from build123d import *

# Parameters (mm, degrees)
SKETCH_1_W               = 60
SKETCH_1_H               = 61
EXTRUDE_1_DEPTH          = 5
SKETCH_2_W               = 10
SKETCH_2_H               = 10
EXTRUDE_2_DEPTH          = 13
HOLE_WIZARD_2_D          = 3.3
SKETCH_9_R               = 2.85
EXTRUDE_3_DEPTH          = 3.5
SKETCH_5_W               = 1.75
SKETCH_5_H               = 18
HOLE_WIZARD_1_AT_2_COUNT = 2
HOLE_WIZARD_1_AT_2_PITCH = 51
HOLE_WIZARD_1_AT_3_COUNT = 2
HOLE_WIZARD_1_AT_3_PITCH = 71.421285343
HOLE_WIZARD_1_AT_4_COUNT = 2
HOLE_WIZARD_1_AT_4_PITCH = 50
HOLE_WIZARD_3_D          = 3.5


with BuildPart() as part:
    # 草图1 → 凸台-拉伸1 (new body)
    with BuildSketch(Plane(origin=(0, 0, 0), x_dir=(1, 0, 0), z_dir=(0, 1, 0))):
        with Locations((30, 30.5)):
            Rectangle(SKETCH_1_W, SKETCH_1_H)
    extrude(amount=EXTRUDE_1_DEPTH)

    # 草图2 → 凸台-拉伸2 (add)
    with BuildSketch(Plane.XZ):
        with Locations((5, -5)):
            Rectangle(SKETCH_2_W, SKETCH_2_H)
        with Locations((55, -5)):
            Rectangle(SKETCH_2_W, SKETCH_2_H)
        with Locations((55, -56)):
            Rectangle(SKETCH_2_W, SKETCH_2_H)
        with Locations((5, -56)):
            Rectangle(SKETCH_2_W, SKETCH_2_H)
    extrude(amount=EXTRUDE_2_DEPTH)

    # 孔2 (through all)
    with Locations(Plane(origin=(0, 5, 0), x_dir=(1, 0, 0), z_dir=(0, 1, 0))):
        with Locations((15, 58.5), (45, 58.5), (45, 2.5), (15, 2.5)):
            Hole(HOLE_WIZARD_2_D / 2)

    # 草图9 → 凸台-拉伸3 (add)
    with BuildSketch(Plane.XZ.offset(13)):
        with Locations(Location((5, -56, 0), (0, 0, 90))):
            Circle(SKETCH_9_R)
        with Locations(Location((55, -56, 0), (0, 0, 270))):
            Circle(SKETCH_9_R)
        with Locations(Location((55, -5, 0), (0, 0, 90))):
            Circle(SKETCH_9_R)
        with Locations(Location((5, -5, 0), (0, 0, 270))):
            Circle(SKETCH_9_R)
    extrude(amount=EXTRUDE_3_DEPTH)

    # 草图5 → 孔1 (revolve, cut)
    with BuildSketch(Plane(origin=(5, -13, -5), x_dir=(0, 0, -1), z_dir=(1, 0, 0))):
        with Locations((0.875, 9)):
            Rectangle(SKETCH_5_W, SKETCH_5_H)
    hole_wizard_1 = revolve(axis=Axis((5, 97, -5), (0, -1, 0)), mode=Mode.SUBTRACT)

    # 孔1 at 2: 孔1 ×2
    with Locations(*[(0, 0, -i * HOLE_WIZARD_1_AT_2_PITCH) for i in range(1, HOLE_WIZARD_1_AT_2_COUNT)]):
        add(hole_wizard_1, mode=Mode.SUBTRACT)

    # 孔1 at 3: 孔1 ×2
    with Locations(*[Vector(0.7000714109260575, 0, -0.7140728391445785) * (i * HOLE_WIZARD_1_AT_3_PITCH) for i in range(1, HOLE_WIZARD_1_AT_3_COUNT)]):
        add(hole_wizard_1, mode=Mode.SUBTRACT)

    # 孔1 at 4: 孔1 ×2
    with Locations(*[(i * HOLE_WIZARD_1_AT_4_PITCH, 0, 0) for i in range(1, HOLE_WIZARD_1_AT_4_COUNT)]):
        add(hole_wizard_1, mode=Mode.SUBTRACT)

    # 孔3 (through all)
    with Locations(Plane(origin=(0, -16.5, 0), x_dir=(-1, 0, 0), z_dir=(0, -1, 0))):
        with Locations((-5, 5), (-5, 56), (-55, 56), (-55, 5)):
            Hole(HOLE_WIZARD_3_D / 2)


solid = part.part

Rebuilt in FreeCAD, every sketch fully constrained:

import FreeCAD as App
import Part
import Sketcher
from FreeCAD import Vector


def add_polygon(sketch, points):
    """Adds a closed chain of lines whose ends are joined by coincident constraints."""
    first, n = sketch.GeometryCount, len(points)
    for a, b in zip(points, points[1:] + points[:1]):
        sketch.addGeometry(Part.LineSegment(App.Vector(*a, 0), App.Vector(*b, 0)), False)
    for i in range(n):
        sketch.addConstraint(Sketcher.Constraint("Coincident", first + i, 2, first + (i + 1) % n, 1))

doc = App.newDocument("Part")
body = doc.addObject("PartDesign::Body", "Body")

# Sketch on XZ plane
sketch1 = body.newObject("Sketcher::SketchObject", "Sketch")
sketch1.AttachmentSupport = (doc.getObject("XZ_Plane"), [""])
sketch1.MapMode = "FlatFace"
add_polygon(sketch1, [(0, -61), (0, 0), (60, 0), (60, -61)])  # lines 0-3
sketch1.addConstraint(Sketcher.Constraint("Vertical", 0))
sketch1.addConstraint(Sketcher.Constraint("Horizontal", 1))
sketch1.addConstraint(Sketcher.Constraint("Vertical", 2))
sketch1.addConstraint(Sketcher.Constraint("Horizontal", 3))
sketch1.addConstraint(Sketcher.Constraint("Coincident", 0, 2, -1, 1))
sketch1.addConstraint(Sketcher.Constraint("DistanceX", 1, 1, 1, 2, 60.0))
sketch1.addConstraint(Sketcher.Constraint("DistanceY", 0, 1, 0, 2, 61.0))
pad1 = body.newObject("PartDesign::Pad", "Pad")
pad1.Profile = sketch1
pad1.Length = 5
pad1.Reversed = True

# Sketch on XZ plane
sketch2 = body.newObject("Sketcher::SketchObject", "Sketch001")
sketch2.AttachmentSupport = (doc.getObject("XZ_Plane"), [""])
sketch2.MapMode = "FlatFace"
add_polygon(sketch2, [(0, 0), (0, -10), (10, -10), (10, 0)])  # lines 0-3
add_polygon(sketch2, [(50, 0), (50, -10), (60, -10), (60, 0)])  # lines 4-7
add_polygon(sketch2, [(50, -51), (50, -61), (60, -61), (60, -51)])  # lines 8-11
add_polygon(sketch2, [(0, -51), (0, -61), (10, -61), (10, -51)])  # lines 12-15
sketch2.addConstraint(Sketcher.Constraint("Vertical", 0))
sketch2.addConstraint(Sketcher.Constraint("Horizontal", 1))
sketch2.addConstraint(Sketcher.Constraint("Vertical", 2))
sketch2.addConstraint(Sketcher.Constraint("Horizontal", 3))
sketch2.addConstraint(Sketcher.Constraint("Vertical", 4))
sketch2.addConstraint(Sketcher.Constraint("Horizontal", 5))
sketch2.addConstraint(Sketcher.Constraint("Vertical", 6))
sketch2.addConstraint(Sketcher.Constraint("Horizontal", 7))
sketch2.addConstraint(Sketcher.Constraint("Vertical", 8))
sketch2.addConstraint(Sketcher.Constraint("Horizontal", 9))
sketch2.addConstraint(Sketcher.Constraint("Vertical", 10))
sketch2.addConstraint(Sketcher.Constraint("Horizontal", 11))
sketch2.addConstraint(Sketcher.Constraint("Vertical", 12))
sketch2.addConstraint(Sketcher.Constraint("Horizontal", 13))
sketch2.addConstraint(Sketcher.Constraint("Vertical", 14))
sketch2.addConstraint(Sketcher.Constraint("Horizontal", 15))
sketch2.addConstraint(Sketcher.Constraint("Coincident", 3, 2, -1, 1))
sketch2.addConstraint(Sketcher.Constraint("PointOnObject", 6, 2, -1))
sketch2.addConstraint(Sketcher.Constraint("PointOnObject", 12, 2, -2))
sketch2.addConstraint(Sketcher.Constraint("Horizontal", 1, 2, 4, 2))
sketch2.addConstraint(Sketcher.Constraint("Horizontal", 9, 2, 12, 2))
sketch2.addConstraint(Sketcher.Constraint("Horizontal", 11, 2, 14, 2))
sketch2.addConstraint(Sketcher.Constraint("Vertical", 7, 2, 8, 2))
sketch2.addConstraint(Sketcher.Constraint("Vertical", 6, 2, 9, 2))
sketch2.addConstraint(Sketcher.Constraint("Vertical", 2, 2, 13, 2))
sketch2.addConstraint(Sketcher.Constraint("Equal", 3, 5))
sketch2.addConstraint(Sketcher.Constraint("Equal", 15, 0))
sketch2.addConstraint(Sketcher.Constraint("Equal", 6, 8))
sketch2.addConstraint(Sketcher.Constraint("DistanceX", 1, 1, 1, 2, 10.0))
sketch2.addConstraint(Sketcher.Constraint("DistanceX", -1, 1, 4, 2, 50.0))
sketch2.addConstraint(Sketcher.Constraint("DistanceY", 8, 2, -1, 1, 61.0))
pad2 = body.newObject("PartDesign::Pad", "Pad001")
pad2.Profile = sketch2
pad2.Length = 13

# Sketch on XZ plane
sketch3 = body.newObject("Sketcher::SketchObject", "Sketch002")
sketch3.AttachmentSupport = (doc.getObject("XZ_Plane"), [""])
sketch3.MapMode = "FlatFace"
sketch3.AttachmentOffset = App.Placement(Vector(0, 0, -5), App.Rotation())
sketch3.addGeometry(Part.Circle(Vector(15, -58.5, 0), Vector(0, 0, 1), 1.65), False)
sketch3.addGeometry(Part.Circle(Vector(45, -58.5, 0), Vector(0, 0, 1), 1.65), False)
sketch3.addGeometry(Part.Circle(Vector(45, -2.5, 0), Vector(0, 0, 1), 1.65), False)
sketch3.addGeometry(Part.Circle(Vector(15, -2.5, 0), Vector(0, 0, 1), 1.65), False)
sketch3.addConstraint(Sketcher.Constraint("Equal", 0, 1))
sketch3.addConstraint(Sketcher.Constraint("Equal", 1, 2))
sketch3.addConstraint(Sketcher.Constraint("Equal", 2, 3))
sketch3.addConstraint(Sketcher.Constraint("Horizontal", 0, 3, 1, 3))
sketch3.addConstraint(Sketcher.Constraint("Horizontal", 2, 3, 3, 3))
sketch3.addConstraint(Sketcher.Constraint("Vertical", 1, 3, 2, 3))
sketch3.addConstraint(Sketcher.Constraint("Vertical", 0, 3, 3, 3))
sketch3.addConstraint(Sketcher.Constraint("Diameter", 0, 3.3))
sketch3.addConstraint(Sketcher.Constraint("DistanceX", -1, 1, 0, 3, 15.0))
sketch3.addConstraint(Sketcher.Constraint("DistanceX", -1, 1, 1, 3, 45.0))
sketch3.addConstraint(Sketcher.Constraint("DistanceY", 1, 3, 2, 3, 56.0))
sketch3.addConstraint(Sketcher.Constraint("DistanceY", 0, 3, -1, 1, 58.5))
doc.recompute()
hole = body.newObject("PartDesign::Hole", "Hole")
hole.Profile = sketch3
hole.ThreadType = "None"
hole.Diameter = 3.3
hole.DepthType = "ThroughAll"
hole.Reversed = True

# Sketch on XZ plane
sketch4 = body.newObject("Sketcher::SketchObject", "Sketch003")
sketch4.AttachmentSupport = (doc.getObject("XZ_Plane"), [""])
sketch4.MapMode = "FlatFace"
sketch4.AttachmentOffset = App.Placement(Vector(0, 0, 13), App.Rotation())
sketch4.addGeometry(Part.Circle(Vector(5, -56, 0), Vector(0, 0, 1), 2.85), False)
sketch4.addGeometry(Part.Circle(Vector(55, -56, 0), Vector(0, 0, 1), 2.85), False)
sketch4.addGeometry(Part.Circle(Vector(55, -5, 0), Vector(0, 0, 1), 2.85), False)
sketch4.addGeometry(Part.Circle(Vector(5, -5, 0), Vector(0, 0, 1), 2.85), False)
sketch4.addConstraint(Sketcher.Constraint("Equal", 0, 1))
sketch4.addConstraint(Sketcher.Constraint("Equal", 1, 2))
sketch4.addConstraint(Sketcher.Constraint("Equal", 2, 3))
sketch4.addConstraint(Sketcher.Constraint("Horizontal", 0, 3, 1, 3))
sketch4.addConstraint(Sketcher.Constraint("Horizontal", 2, 3, 3, 3))
sketch4.addConstraint(Sketcher.Constraint("Vertical", 1, 3, 2, 3))
sketch4.addConstraint(Sketcher.Constraint("Vertical", 0, 3, 3, 3))
sketch4.addConstraint(Sketcher.Constraint("Diameter", 0, 5.7))
sketch4.addConstraint(Sketcher.Constraint("DistanceX", -1, 1, 0, 3, 5.0))
sketch4.addConstraint(Sketcher.Constraint("DistanceY", 0, 3, -1, 1, 56.0))
sketch4.addConstraint(Sketcher.Constraint("DistanceX", -1, 1, 1, 3, 55.0))
sketch4.addConstraint(Sketcher.Constraint("DistanceY", 2, 3, -1, 1, 5.0))
pad3 = body.newObject("PartDesign::Pad", "Pad002")
pad3.Profile = sketch4
pad3.Length = 3.5

# Sketch on YZ plane
sketch5 = body.newObject("Sketcher::SketchObject", "Sketch004")
sketch5.AttachmentSupport = (doc.getObject("YZ_Plane"), [""])
sketch5.MapMode = "FlatFace"
sketch5.AttachmentOffset = App.Placement(Vector(0, 0, 5), App.Rotation())
add_polygon(sketch5, [(5, -5), (-13, -5), (-13, -6.75), (5, -6.75)])  # lines 0-3
sketch5.addGeometry(Part.LineSegment(Vector(5, -5, 0), Vector(-13, -5, 0)), True)  # axis
sketch5.addConstraint(Sketcher.Constraint("Horizontal", 0))
sketch5.addConstraint(Sketcher.Constraint("Vertical", 1))
sketch5.addConstraint(Sketcher.Constraint("Horizontal", 2))
sketch5.addConstraint(Sketcher.Constraint("Vertical", 3))
sketch5.addConstraint(Sketcher.Constraint("Horizontal", 4))
sketch5.addConstraint(Sketcher.Constraint("Coincident", 4, 1, 3, 2))
sketch5.addConstraint(Sketcher.Constraint("Vertical", 1, 2, 4, 2))
sketch5.addConstraint(Sketcher.Constraint("DistanceX", 0, 2, 0, 1, 18.0))
sketch5.addConstraint(Sketcher.Constraint("DistanceX", 0, 2, -1, 1, 13.0))
sketch5.addConstraint(Sketcher.Constraint("DistanceY", 0, 2, -1, 1, 5.0))
sketch5.addConstraint(Sketcher.Constraint("DistanceY", 1, 2, 1, 1, 1.75))
groove = body.newObject("PartDesign::Groove", "Groove")
groove.Profile = sketch5
groove.ReferenceAxis = (sketch5, ["Axis0"])
groove.Angle = 360
doc.recompute()

linearpattern = body.newObject("PartDesign::LinearPattern", "LinearPattern")
linearpattern.Originals = [groove]
linearpattern.Direction = (doc.getObject("Z_Axis"), [""])
linearpattern.Mode = "offset"
linearpattern.Offset = 51
linearpattern.Occurrences = 2
linearpattern.Reversed = True
body.Tip = linearpattern
doc.recompute()

datumline = body.newObject("PartDesign::Line", "DatumLine")
datumline.Placement = App.Placement(Vector(0, 0, 0), App.Rotation(Vector(0, 0, 1), Vector(0.700071411, 0, -0.714072839)))
linearpattern2 = body.newObject("PartDesign::LinearPattern", "LinearPattern001")
linearpattern2.Originals = [groove]
linearpattern2.Direction = (datumline, [""])
linearpattern2.Mode = "offset"
linearpattern2.Offset = 71.421285
linearpattern2.Occurrences = 2
body.Tip = linearpattern2
doc.recompute()

linearpattern3 = body.newObject("PartDesign::LinearPattern", "LinearPattern002")
linearpattern3.Originals = [groove]
linearpattern3.Direction = (doc.getObject("X_Axis"), [""])
linearpattern3.Mode = "offset"
linearpattern3.Offset = 50
linearpattern3.Occurrences = 2
body.Tip = linearpattern3

# Sketch on XZ plane
sketch6 = body.newObject("Sketcher::SketchObject", "Sketch005")
sketch6.AttachmentSupport = (doc.getObject("XZ_Plane"), [""])
sketch6.MapMode = "FlatFace"
sketch6.AttachmentOffset = App.Placement(Vector(0, 0, 16.5), App.Rotation())
sketch6.addGeometry(Part.Circle(Vector(5, -5, 0), Vector(0, 0, 1), 1.75), False)
sketch6.addGeometry(Part.Circle(Vector(5, -56, 0), Vector(0, 0, 1), 1.75), False)
sketch6.addGeometry(Part.Circle(Vector(55, -56, 0), Vector(0, 0, 1), 1.75), False)
sketch6.addGeometry(Part.Circle(Vector(55, -5, 0), Vector(0, 0, 1), 1.75), False)
sketch6.addConstraint(Sketcher.Constraint("Equal", 0, 1))
sketch6.addConstraint(Sketcher.Constraint("Equal", 1, 2))
sketch6.addConstraint(Sketcher.Constraint("Equal", 2, 3))
sketch6.addConstraint(Sketcher.Constraint("Horizontal", 1, 3, 2, 3))
sketch6.addConstraint(Sketcher.Constraint("Horizontal", 0, 3, 3, 3))
sketch6.addConstraint(Sketcher.Constraint("Vertical", 0, 3, 1, 3))
sketch6.addConstraint(Sketcher.Constraint("Vertical", 2, 3, 3, 3))
sketch6.addConstraint(Sketcher.Constraint("Diameter", 0, 3.5))
sketch6.addConstraint(Sketcher.Constraint("DistanceX", -1, 1, 0, 3, 5.0))
sketch6.addConstraint(Sketcher.Constraint("DistanceY", 0, 3, -1, 1, 5.0))
sketch6.addConstraint(Sketcher.Constraint("DistanceY", 1, 3, -1, 1, 56.0))
sketch6.addConstraint(Sketcher.Constraint("DistanceX", -1, 1, 2, 3, 55.0))
doc.recompute()
hole2 = body.newObject("PartDesign::Hole", "Hole001")
hole2.Profile = sketch6
hole2.ThreadType = "None"
hole2.Diameter = 3.5
hole2.DepthType = "ThroughAll"

doc.recompute()
